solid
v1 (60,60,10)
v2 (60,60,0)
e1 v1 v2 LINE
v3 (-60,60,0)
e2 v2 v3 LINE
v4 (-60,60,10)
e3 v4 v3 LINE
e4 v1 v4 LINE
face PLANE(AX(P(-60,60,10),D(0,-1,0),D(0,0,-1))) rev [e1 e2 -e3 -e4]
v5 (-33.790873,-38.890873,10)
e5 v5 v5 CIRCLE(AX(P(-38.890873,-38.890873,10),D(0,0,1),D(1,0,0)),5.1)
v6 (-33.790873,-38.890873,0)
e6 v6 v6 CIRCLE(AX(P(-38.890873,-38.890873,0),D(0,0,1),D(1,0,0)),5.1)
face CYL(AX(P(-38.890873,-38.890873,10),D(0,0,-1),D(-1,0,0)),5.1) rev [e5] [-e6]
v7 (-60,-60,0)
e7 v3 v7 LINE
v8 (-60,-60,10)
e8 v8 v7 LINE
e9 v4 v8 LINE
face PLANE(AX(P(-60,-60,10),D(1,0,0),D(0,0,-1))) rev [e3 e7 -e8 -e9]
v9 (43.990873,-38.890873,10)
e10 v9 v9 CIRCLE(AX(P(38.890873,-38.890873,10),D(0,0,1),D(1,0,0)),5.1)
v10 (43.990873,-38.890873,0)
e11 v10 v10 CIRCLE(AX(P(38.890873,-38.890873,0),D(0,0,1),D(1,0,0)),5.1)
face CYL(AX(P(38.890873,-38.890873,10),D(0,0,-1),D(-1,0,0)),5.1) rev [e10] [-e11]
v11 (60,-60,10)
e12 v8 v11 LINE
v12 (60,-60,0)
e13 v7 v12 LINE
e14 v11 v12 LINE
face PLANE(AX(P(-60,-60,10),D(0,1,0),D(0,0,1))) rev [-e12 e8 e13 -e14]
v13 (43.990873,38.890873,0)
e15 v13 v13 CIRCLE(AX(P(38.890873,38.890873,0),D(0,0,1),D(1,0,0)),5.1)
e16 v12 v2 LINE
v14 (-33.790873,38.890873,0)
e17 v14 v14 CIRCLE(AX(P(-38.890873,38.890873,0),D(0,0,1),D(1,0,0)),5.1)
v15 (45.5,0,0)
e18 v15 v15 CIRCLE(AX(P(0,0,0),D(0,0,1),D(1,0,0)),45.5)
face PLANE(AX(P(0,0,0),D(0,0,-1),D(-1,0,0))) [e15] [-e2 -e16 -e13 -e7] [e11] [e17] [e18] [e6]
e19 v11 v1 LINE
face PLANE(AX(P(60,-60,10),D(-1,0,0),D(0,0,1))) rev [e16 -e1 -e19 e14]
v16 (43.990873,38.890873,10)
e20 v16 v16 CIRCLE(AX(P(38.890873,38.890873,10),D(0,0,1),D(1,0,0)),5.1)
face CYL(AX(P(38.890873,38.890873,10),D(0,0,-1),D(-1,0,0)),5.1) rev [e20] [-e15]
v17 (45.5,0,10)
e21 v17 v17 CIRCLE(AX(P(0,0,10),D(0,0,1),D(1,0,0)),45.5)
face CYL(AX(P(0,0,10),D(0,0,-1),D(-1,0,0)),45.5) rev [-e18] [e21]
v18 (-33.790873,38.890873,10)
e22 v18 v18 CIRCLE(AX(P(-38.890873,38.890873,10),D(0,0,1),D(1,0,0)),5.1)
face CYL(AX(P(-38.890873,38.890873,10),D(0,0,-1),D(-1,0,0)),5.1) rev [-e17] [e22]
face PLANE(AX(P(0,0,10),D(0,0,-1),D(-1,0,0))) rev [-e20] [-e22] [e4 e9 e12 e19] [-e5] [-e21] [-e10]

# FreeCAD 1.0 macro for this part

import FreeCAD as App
import Part
import Sketcher
from FreeCAD import Vector

doc = App.newDocument("Part")
params = doc.addObject("Spreadsheet::Sheet", "Params")
for row, (alias, value) in enumerate([
    ("sketch1_diameter", "91 mm"),
    ("sketch1_diameter2", "10.2 mm"),
    ("sketch1_width", "120 mm"),
    ("pad1_length", "10 mm"),
], start=1):
    params.set(f"A{row}", alias)
    params.set(f"B{row}", "=" + value)
    params.setAlias(f"B{row}", alias)

body = doc.addObject("PartDesign::Body", "Body")

sketch1 = body.newObject("Sketcher::SketchObject", "Sketch")
sketch1.AttachmentSupport = (doc.getObject("XY_Plane"), [""])
sketch1.MapMode = "FlatFace"
sketch1.addGeometry([
    Part.LineSegment(Vector(-60, 60, 0), Vector(-60, -60, 0)),
    Part.LineSegment(Vector(-60, -60, 0), Vector(60, -60, 0)),
    Part.LineSegment(Vector(60, -60, 0), Vector(60, 60, 0)),
    Part.LineSegment(Vector(60, 60, 0), Vector(-60, 60, 0)),
    Part.Circle(Vector(-39, -39, 0), Vector(0, 0, 1), 5),
    Part.Circle(Vector(39, -39, 0), Vector(0, 0, 1), 5),
    Part.Circle(Vector(-39, 39, 0), Vector(0, 0, 1), 5),
    Part.Circle(Vector(0, 0, 0), Vector(0, 0, 1), 46),
    Part.Circle(Vector(39, 39, 0), Vector(0, 0, 1), 5),
], False)
sketch1.addConstraint([
    Sketcher.Constraint("Coincident", 0, 2, 1, 1),
    Sketcher.Constraint("Coincident", 1, 2, 2, 1),
    Sketcher.Constraint("Coincident", 2, 2, 3, 1),
    Sketcher.Constraint("Coincident", 3, 2, 0, 1),
    Sketcher.Constraint("Vertical", 0),
    Sketcher.Constraint("Horizontal", 1),
    Sketcher.Constraint("Vertical", 2),
    Sketcher.Constraint("Horizontal", 3),
    Sketcher.Constraint("Coincident", 7, 3, -1, 1),
    Sketcher.Constraint("Equal", 4, 5),
    Sketcher.Constraint("Equal", 5, 6),
    Sketcher.Constraint("Equal", 6, 8),
    Sketcher.Constraint("Symmetric", 5, 3, 6, 3, -1, 1),
    Sketcher.Constraint("Symmetric", 4, 3, 8, 3, -1, 1),
    Sketcher.Constraint("Symmetric", 0, 2, 2, 2, -1, 1),
    Sketcher.Constraint("Symmetric", 4, 3, 5, 3, -2),
    Sketcher.Constraint("Equal", 3, 0),
    Sketcher.Constraint("Diameter", 7, 91.0),
    Sketcher.Constraint("Diameter", 4, 10.2),
    Sketcher.Constraint("DistanceX", 1, 1, 1, 2, 120.0),
    Sketcher.Constraint("DistanceX", 4, 3, -1, 1, 38.890873),
    Sketcher.Constraint("DistanceY", 4, 3, -1, 1, 38.890873),
])
sketch1.setExpression("Constraints[17]", "Params.sketch1_diameter")
sketch1.setExpression("Constraints[18]", "Params.sketch1_diameter2")
sketch1.setExpression("Constraints[19]", "Params.sketch1_width")
pad1 = body.newObject("PartDesign::Pad", "Pad")
pad1.Profile = sketch1
pad1.setExpression("Length", "Params.pad1_length")

doc.recompute()
